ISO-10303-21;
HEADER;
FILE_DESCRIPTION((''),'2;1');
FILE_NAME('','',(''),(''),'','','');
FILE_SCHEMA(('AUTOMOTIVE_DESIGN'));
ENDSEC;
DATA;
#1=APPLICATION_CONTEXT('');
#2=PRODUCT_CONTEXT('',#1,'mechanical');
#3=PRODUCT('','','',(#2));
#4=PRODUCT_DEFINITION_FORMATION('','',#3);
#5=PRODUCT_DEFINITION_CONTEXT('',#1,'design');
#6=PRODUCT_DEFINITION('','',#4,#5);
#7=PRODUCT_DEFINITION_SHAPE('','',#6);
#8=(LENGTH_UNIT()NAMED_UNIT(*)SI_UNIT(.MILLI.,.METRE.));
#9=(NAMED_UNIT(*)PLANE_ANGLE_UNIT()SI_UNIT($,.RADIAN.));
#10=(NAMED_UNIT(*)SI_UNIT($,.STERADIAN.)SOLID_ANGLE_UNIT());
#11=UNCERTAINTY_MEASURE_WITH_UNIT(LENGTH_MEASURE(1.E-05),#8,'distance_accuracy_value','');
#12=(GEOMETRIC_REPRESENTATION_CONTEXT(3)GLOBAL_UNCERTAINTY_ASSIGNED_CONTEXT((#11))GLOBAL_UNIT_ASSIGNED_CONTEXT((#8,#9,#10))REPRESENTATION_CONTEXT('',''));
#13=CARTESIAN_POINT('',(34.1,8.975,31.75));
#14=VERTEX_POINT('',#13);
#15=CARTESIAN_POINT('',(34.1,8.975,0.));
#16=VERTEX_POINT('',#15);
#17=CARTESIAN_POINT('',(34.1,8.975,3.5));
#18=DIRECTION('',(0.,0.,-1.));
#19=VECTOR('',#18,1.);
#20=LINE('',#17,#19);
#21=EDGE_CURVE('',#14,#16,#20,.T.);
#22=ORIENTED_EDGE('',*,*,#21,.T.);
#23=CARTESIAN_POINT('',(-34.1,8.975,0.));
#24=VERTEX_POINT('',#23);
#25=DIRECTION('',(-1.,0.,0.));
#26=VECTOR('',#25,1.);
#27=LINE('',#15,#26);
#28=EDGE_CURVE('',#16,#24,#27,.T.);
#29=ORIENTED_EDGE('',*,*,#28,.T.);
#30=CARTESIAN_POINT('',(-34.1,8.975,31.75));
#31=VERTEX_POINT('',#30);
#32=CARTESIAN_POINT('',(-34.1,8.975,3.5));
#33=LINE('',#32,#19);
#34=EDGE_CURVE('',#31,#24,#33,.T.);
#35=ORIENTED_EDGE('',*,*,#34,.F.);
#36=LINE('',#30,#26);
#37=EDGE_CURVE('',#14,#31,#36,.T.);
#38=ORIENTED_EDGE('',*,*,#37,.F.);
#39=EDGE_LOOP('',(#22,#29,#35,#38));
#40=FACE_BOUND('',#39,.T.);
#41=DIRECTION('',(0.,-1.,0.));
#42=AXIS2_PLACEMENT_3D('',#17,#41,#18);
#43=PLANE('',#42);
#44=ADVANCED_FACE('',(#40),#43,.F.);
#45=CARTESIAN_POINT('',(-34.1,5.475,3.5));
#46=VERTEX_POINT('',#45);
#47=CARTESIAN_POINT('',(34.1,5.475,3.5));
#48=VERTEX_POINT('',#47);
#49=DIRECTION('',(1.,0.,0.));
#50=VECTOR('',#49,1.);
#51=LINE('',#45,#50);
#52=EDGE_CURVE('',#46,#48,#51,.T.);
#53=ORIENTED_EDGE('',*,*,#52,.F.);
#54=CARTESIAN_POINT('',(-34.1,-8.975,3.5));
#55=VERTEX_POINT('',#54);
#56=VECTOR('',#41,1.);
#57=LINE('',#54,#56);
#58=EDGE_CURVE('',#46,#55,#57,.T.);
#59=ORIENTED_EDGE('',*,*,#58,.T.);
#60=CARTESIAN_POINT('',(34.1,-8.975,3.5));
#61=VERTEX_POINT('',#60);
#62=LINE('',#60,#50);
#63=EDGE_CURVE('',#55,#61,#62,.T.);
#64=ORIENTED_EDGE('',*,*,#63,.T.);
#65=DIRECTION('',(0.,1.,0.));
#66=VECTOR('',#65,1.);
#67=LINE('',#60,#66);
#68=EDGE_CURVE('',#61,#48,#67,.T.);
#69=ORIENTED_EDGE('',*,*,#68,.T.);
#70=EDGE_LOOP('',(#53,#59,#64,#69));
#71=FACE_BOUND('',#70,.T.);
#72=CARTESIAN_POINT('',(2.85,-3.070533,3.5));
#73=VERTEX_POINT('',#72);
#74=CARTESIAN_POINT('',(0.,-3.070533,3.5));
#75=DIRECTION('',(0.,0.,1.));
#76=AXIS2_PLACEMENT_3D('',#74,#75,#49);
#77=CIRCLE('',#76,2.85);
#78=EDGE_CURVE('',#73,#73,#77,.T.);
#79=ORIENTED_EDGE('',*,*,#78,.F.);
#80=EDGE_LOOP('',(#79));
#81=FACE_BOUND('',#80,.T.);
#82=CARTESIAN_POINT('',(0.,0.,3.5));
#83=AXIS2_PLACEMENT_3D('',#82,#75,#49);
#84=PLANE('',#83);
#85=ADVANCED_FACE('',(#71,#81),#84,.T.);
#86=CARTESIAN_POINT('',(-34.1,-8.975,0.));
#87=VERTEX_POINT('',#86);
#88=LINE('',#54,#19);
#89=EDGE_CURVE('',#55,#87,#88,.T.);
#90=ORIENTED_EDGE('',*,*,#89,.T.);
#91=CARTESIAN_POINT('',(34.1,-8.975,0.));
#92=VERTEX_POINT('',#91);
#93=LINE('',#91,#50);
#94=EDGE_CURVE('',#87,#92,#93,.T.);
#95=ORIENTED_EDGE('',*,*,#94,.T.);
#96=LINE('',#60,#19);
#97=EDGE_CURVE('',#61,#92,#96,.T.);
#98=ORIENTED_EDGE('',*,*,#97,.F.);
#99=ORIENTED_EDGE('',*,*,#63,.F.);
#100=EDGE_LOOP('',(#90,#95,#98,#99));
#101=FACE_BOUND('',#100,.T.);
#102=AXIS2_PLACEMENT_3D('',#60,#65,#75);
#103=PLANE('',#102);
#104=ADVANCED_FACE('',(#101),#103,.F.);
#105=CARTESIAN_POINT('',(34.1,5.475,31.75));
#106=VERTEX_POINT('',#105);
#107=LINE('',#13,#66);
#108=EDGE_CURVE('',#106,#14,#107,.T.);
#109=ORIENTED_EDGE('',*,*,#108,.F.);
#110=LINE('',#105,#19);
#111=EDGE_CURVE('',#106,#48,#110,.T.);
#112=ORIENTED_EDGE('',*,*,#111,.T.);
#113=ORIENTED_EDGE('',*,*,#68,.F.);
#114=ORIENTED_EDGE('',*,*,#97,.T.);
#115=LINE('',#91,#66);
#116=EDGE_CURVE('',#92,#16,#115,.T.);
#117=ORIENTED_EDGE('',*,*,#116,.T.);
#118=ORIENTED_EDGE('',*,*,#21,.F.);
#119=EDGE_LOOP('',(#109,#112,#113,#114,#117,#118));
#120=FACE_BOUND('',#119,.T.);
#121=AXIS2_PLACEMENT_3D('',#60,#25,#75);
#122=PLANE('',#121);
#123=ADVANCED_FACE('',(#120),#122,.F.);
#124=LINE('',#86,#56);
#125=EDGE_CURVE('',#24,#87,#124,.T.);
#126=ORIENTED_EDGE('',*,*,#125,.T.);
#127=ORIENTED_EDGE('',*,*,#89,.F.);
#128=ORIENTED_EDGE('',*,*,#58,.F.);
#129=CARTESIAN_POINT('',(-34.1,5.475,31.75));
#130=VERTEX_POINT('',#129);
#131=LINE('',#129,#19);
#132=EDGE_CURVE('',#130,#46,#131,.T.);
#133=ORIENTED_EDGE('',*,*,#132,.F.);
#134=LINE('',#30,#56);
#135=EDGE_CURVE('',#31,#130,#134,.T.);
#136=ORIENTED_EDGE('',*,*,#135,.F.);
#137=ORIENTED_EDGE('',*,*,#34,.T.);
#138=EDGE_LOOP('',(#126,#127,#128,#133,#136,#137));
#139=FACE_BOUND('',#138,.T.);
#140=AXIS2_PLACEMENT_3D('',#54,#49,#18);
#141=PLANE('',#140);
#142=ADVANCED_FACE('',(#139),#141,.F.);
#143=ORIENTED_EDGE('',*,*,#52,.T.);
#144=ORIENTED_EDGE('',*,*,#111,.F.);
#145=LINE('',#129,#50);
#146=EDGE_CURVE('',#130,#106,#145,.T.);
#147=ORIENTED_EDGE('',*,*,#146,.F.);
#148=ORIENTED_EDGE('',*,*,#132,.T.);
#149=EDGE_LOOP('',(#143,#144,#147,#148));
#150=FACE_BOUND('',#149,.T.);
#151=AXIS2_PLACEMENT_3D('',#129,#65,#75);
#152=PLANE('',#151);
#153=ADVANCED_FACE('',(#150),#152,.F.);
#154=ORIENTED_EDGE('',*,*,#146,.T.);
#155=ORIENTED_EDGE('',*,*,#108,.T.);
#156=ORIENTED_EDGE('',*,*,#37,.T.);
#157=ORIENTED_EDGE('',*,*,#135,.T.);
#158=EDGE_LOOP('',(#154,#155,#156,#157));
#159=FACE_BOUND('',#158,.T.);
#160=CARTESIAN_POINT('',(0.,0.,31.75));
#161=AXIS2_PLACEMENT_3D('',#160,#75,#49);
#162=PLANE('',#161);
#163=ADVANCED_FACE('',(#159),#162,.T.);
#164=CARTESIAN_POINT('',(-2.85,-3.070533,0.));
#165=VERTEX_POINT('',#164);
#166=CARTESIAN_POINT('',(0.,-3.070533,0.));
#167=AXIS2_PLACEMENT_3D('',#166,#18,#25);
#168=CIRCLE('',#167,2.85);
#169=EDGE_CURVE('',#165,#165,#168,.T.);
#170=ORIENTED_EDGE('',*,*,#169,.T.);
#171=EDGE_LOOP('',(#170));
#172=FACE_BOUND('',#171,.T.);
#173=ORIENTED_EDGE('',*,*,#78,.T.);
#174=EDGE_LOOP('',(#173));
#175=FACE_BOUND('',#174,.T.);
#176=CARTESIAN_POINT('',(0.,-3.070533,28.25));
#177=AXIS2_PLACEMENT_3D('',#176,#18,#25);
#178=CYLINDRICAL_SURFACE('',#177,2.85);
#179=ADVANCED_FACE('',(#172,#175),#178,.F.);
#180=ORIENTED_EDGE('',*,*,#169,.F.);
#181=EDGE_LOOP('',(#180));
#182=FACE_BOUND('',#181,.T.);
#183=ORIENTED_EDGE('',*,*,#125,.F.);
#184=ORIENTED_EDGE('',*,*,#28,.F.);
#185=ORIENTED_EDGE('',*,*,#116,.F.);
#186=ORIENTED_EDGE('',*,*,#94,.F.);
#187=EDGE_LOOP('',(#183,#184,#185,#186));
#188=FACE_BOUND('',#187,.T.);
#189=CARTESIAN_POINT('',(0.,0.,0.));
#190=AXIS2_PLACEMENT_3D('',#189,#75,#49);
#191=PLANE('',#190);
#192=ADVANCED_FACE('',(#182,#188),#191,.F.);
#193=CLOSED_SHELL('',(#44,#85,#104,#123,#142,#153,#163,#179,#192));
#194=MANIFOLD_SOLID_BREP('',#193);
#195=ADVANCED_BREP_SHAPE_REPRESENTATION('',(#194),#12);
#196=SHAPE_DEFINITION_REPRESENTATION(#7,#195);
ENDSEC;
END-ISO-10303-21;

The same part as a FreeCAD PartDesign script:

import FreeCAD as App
import Part
import Sketcher
from FreeCAD import Vector
Q = App.Units.Quantity


def add_polygon(sketch, points):
    """Adds a closed chain of lines whose ends are joined by coincident constraints."""
    first, n = sketch.GeometryCount, len(points)
    for a, b in zip(points, points[1:] + points[:1]):
        sketch.addGeometry(Part.LineSegment(App.Vector(*a, 0), App.Vector(*b, 0)), False)
    for i in range(n):
        sketch.addConstraint(Sketcher.Constraint("Coincident", first + i, 2, first + (i + 1) % n, 1))

doc = App.newDocument("Part")
body = doc.addObject("PartDesign::Body", "Body")

# Sketch on XY plane
sketch1 = body.newObject("Sketcher::SketchObject", "Sketch")
sketch1.AttachmentSupport = (doc.getObject("XY_Plane"), [""])
sketch1.MapMode = "FlatFace"
add_polygon(sketch1, [(-34, 9), (-34, -9), (34, -9), (34, 9)])  # lines 0-3
sketch1.addConstraint([
    Sketcher.Constraint("Vertical", 0),
    Sketcher.Constraint("Horizontal", 1),
    Sketcher.Constraint("Vertical", 2),
    Sketcher.Constraint("Horizontal", 3),
    Sketcher.Constraint("Symmetric", 0, 2, 2, 2, -1, 1),
    Sketcher.Constraint("DistanceX", 1, 1, 1, 2, Q("68.2 mm")),
    Sketcher.Constraint("DistanceY", 0, 2, 0, 1, Q("17.95 mm")),
])
pad1 = body.newObject("PartDesign::Pad", "Pad")
pad1.Profile = sketch1
pad1.Length = 3.5

# Sketch on XY plane
sketch2 = body.newObject("Sketcher::SketchObject", "Sketch001")
sketch2.AttachmentSupport = (doc.getObject("XY_Plane"), [""])
sketch2.MapMode = "FlatFace"
sketch2.AttachmentOffset = App.Placement(Vector(0, 0, 3.5), App.Rotation())
add_polygon(sketch2, [(-34.1, 9), (-34.1, 5.5), (34.1, 5.5), (34.1, 9)])  # lines 0-3
sketch2.addConstraint([
    Sketcher.Constraint("Vertical", 0),
    Sketcher.Constraint("Horizontal", 1),
    Sketcher.Constraint("Vertical", 2),
    Sketcher.Constraint("Horizontal", 3),
    Sketcher.Constraint("DistanceX", 1, 1, 1, 2, Q("68.2 mm")),
    Sketcher.Constraint("DistanceY", 0, 2, 0, 1, Q("3.5 mm")),
    Sketcher.Constraint("DistanceX", 0, 2, -1, 1, Q("34.1 mm")),
    Sketcher.Constraint("DistanceY", -1, 1, 0, 2, Q("5.475 mm")),
])
pad2 = body.newObject("PartDesign::Pad", "Pad001")
pad2.Profile = sketch2
pad2.Length = 28.25

# Sketch on XY plane
sketch3 = body.newObject("Sketcher::SketchObject", "Sketch002")
sketch3.AttachmentSupport = (doc.getObject("XY_Plane"), [""])
sketch3.MapMode = "FlatFace"
sketch3.addGeometry(Part.Circle(Vector(0, -3.1, 0), Vector(0, 0, 1), 2.9), False)
sketch3.addConstraint([
    Sketcher.Constraint("PointOnObject", 0, 3, -2),
    Sketcher.Constraint("Diameter", 0, Q("5.7 mm")),
    Sketcher.Constraint("DistanceY", 0, 3, -1, 1, Q("3.070533 mm")),
])
pocket1 = body.newObject("PartDesign::Pocket", "Pocket")
pocket1.Profile = sketch3
pocket1.Length = 28.25
pocket1.Reversed = True

doc.recompute()
